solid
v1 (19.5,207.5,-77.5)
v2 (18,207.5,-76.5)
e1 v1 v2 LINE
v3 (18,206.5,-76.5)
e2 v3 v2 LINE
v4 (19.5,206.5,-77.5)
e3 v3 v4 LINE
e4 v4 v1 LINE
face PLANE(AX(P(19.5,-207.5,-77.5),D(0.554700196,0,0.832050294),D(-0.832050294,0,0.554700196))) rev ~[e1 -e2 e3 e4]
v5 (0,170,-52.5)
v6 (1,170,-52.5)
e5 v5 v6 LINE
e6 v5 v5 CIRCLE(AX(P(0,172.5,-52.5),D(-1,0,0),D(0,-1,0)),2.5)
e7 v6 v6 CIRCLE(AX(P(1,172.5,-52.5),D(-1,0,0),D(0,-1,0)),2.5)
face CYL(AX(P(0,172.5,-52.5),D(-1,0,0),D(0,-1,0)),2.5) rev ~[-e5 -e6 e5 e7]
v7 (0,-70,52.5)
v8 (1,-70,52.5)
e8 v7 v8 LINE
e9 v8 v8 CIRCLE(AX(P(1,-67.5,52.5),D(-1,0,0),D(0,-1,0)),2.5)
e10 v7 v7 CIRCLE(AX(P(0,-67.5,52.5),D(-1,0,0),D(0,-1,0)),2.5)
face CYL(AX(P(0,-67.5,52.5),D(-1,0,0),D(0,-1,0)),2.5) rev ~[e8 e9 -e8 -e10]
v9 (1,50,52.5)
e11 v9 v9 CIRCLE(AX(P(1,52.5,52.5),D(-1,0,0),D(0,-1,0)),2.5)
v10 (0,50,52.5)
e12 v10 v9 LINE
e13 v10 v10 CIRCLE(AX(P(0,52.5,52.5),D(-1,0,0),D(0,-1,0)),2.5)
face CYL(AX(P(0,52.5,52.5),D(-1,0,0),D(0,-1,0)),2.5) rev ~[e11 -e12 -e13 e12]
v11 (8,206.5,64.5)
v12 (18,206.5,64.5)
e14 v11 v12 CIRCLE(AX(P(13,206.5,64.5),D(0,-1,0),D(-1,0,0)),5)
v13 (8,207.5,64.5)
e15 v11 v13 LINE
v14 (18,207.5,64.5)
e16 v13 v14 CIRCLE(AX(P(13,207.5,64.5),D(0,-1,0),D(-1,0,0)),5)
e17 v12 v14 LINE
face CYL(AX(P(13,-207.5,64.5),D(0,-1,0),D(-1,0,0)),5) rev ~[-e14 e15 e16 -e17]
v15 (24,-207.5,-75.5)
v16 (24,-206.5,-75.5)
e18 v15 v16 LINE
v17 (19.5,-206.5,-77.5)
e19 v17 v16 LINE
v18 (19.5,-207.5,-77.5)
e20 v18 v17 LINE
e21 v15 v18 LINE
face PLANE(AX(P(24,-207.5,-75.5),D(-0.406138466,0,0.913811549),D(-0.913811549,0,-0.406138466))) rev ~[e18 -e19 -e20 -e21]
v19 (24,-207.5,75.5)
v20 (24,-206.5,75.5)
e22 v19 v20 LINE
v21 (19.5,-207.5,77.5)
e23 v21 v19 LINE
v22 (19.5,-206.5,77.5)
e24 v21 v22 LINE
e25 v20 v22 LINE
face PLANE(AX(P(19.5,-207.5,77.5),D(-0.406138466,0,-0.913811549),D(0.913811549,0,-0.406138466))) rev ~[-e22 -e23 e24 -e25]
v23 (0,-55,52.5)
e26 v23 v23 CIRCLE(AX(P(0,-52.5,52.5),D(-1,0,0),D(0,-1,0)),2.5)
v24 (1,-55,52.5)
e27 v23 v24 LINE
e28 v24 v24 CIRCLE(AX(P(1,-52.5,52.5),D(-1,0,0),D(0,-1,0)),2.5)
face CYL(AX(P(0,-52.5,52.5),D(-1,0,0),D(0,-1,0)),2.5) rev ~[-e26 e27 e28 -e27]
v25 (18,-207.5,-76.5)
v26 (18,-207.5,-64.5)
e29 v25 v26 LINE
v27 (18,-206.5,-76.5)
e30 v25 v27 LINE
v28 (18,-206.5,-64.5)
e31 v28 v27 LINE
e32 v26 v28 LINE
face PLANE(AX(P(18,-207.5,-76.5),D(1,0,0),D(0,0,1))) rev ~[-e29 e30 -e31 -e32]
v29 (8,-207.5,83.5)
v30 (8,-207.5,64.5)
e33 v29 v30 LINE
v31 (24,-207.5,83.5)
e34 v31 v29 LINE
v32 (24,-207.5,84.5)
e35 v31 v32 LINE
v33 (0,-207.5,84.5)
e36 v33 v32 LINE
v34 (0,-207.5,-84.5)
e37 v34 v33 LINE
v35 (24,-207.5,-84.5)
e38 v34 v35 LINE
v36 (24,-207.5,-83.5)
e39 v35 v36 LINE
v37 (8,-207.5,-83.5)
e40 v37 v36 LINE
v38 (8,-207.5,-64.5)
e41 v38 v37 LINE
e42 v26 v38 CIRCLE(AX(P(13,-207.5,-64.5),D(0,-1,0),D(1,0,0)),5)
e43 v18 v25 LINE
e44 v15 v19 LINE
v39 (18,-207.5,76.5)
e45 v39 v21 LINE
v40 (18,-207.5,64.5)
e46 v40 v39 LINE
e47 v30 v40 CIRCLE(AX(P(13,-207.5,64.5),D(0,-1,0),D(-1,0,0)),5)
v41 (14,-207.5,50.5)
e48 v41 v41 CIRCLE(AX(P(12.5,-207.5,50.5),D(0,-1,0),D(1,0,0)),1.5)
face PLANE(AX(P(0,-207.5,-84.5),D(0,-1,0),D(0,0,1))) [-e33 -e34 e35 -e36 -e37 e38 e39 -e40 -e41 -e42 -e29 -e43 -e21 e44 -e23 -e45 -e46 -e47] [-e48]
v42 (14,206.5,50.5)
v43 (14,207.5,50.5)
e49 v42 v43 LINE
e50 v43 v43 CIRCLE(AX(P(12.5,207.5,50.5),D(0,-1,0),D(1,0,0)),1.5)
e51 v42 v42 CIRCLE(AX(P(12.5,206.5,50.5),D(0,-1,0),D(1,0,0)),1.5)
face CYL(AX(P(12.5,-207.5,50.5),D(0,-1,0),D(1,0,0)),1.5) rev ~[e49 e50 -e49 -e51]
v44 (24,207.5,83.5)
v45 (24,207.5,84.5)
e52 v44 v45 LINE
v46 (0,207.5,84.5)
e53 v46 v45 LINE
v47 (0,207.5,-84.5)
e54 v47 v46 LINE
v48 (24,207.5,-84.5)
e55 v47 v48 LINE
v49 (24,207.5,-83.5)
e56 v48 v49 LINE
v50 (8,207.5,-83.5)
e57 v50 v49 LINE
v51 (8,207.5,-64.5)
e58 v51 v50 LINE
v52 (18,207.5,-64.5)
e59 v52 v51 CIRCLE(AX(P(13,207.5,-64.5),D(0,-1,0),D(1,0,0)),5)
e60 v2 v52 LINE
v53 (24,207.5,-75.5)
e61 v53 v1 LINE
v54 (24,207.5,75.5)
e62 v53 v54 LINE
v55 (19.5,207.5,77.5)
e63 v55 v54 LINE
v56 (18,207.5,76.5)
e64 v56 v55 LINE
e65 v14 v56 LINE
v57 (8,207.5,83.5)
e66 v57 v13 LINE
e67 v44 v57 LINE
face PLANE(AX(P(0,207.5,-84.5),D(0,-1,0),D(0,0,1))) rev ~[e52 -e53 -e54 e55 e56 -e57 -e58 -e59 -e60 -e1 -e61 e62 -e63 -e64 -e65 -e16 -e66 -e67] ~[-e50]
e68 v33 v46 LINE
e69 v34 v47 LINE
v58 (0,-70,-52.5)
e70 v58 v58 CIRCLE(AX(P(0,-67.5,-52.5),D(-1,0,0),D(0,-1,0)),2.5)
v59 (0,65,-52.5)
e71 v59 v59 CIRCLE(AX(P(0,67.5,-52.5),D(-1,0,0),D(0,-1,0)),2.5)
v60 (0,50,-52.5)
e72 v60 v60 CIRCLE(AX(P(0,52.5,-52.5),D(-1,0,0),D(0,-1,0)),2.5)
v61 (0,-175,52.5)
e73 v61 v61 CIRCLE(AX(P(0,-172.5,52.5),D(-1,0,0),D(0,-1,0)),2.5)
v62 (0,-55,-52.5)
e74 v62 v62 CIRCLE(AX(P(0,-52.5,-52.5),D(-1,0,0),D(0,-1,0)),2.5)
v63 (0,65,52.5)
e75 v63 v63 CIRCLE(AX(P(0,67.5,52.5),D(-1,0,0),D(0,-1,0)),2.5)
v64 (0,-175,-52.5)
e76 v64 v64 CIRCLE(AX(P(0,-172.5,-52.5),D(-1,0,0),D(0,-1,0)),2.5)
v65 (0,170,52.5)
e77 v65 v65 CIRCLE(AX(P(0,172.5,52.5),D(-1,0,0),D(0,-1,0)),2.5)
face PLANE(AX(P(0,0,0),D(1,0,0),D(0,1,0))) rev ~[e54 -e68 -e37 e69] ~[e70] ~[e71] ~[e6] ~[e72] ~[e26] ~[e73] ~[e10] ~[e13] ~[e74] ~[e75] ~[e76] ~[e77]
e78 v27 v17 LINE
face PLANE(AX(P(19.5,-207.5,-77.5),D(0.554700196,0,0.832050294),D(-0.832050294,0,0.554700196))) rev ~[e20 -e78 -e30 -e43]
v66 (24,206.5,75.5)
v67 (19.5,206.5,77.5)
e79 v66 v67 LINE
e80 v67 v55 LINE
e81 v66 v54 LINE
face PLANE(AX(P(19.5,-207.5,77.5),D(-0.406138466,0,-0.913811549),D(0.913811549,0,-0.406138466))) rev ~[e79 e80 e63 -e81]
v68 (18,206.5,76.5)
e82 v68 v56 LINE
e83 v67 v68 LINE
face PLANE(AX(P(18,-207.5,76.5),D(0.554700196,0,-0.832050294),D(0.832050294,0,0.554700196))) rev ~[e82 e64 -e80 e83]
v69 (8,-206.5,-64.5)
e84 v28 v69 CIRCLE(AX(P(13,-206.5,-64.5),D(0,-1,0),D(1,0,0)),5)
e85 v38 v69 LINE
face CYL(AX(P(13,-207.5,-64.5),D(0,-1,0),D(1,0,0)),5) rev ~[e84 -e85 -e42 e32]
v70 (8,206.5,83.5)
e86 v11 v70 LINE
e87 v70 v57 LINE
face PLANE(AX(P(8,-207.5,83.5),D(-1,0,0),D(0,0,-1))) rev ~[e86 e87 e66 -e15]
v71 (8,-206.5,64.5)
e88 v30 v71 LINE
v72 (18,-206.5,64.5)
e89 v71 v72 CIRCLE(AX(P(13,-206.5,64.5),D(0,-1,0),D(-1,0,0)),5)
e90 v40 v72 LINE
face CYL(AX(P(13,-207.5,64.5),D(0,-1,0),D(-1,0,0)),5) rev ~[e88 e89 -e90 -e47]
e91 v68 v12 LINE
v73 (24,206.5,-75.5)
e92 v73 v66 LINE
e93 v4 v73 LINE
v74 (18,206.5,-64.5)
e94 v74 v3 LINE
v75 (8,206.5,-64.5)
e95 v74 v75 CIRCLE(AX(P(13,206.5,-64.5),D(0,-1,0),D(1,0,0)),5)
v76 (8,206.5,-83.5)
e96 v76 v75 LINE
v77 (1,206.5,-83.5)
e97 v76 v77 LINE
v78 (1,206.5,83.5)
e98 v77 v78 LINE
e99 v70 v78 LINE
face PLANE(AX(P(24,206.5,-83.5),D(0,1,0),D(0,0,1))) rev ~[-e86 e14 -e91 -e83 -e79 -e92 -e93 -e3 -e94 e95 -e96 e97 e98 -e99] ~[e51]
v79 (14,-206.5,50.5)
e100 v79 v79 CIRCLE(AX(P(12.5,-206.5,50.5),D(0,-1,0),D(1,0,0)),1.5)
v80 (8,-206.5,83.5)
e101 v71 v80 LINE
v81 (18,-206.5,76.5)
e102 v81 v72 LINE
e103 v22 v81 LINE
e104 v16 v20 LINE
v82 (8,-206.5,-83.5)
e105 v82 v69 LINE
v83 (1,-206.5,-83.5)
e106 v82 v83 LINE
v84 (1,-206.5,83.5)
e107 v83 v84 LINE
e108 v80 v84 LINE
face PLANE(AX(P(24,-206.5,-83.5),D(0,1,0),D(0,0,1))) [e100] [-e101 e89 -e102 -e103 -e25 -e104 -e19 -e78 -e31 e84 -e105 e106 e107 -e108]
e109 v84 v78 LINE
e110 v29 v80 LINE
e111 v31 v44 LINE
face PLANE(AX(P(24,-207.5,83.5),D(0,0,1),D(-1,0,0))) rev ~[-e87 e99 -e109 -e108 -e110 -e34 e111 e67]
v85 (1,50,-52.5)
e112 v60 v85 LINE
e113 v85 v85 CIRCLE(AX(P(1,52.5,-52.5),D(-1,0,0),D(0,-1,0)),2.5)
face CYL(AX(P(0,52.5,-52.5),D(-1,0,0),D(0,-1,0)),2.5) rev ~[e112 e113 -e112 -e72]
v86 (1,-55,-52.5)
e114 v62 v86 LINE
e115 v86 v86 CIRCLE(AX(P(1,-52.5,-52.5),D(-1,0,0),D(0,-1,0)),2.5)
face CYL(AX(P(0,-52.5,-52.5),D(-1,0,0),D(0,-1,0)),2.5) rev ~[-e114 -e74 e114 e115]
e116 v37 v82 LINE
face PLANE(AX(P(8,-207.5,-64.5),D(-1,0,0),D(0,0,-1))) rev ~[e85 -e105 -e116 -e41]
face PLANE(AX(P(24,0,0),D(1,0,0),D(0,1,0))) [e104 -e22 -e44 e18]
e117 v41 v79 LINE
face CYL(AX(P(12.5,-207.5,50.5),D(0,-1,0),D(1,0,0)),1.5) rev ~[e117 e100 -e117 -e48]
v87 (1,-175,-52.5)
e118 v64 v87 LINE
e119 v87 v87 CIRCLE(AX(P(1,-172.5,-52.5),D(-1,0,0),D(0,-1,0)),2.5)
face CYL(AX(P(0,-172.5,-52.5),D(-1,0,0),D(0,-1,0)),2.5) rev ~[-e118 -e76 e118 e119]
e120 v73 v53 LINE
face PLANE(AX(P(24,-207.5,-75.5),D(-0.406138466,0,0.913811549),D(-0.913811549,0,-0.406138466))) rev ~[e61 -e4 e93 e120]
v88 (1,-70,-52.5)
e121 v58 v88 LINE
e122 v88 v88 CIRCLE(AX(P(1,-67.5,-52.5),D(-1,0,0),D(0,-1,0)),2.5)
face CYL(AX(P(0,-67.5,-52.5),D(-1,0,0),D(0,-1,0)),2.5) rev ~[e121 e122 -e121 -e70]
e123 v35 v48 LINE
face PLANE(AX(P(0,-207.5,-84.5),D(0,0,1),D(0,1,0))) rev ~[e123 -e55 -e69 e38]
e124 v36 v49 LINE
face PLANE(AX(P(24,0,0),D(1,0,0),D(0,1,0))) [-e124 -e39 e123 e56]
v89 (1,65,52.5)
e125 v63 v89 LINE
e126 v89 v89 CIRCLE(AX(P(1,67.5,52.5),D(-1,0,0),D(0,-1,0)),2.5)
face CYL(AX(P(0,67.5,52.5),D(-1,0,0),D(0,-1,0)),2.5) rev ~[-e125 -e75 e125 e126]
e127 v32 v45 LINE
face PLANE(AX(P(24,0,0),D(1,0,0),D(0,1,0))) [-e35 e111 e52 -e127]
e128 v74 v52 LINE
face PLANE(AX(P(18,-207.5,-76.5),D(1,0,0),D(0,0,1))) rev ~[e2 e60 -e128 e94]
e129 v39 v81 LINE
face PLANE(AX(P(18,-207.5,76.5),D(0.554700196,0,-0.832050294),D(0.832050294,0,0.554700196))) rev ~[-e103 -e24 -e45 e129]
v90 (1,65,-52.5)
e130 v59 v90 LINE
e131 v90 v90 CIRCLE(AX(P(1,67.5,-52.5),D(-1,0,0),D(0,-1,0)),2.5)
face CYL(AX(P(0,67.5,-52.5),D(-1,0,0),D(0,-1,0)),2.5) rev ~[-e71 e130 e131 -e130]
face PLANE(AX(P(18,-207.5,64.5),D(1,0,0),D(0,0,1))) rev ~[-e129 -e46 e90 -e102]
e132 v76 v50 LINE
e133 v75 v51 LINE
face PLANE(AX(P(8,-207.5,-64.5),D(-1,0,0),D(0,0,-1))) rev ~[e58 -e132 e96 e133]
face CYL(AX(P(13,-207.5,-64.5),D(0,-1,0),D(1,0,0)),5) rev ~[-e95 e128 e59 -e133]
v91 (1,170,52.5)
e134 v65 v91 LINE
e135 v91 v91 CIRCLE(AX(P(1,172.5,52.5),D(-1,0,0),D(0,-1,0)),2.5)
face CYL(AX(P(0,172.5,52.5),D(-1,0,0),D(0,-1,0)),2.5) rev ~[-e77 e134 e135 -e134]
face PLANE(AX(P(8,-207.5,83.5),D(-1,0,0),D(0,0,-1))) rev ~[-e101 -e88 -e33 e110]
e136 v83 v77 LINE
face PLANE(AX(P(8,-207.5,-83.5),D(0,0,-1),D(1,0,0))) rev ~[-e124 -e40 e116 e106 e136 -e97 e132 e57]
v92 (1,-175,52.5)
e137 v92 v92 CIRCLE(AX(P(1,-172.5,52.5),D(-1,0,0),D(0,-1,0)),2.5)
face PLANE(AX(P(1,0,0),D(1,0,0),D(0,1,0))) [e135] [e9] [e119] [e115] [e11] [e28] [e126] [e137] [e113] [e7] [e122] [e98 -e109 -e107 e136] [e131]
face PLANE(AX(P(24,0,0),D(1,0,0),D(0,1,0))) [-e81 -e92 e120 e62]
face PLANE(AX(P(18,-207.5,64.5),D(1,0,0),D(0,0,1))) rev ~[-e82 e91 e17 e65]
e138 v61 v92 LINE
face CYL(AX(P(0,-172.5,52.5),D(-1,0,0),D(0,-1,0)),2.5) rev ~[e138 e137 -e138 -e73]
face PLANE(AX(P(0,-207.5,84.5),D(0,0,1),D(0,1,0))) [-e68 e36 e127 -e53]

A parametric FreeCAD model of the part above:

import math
import FreeCAD as App
import Part
import Sketcher

doc = App.newDocument("Part")
params = doc.addObject("Spreadsheet::Sheet", "Params")
for row, (alias, value) in enumerate([
    ("sketch1_width", "415 mm"),
    ("sketch1_height", "169 mm"),
    ("pad1_length", "24 mm"),
    ("sketch2_width", "413 mm"),
    ("sketch2_height", "167 mm"),
    ("pocket1_length", "23 mm"),
    ("sketch3_radius", "5 mm"),
    ("sketch3_width", "16 mm"),
    ("sketch3_height", "8 mm"),
    ("sketch3_height2", "12 mm"),
    ("sketch3_height3", "19 mm"),
    ("sketch4_diameter", "3 mm"),
    ("sketch5_diameter", "5 mm"),
], start=1):
    params.set(f"A{row}", alias)
    params.set(f"B{row}", "=" + value)
    params.setAlias(f"B{row}", alias)

body = doc.addObject("PartDesign::Body", "Body")

sketch1 = doc.addObject("Sketcher::SketchObject", "Sketch")
body.addObject(sketch1)
sketch1.AttachmentSupport = (doc.YZ_Plane, [""])
sketch1.MapMode = "FlatFace"
sketch1.addGeometry([
    Part.LineSegment(App.Vector(-208, 84, 0), App.Vector(-208, -84, 0)),
    Part.LineSegment(App.Vector(-208, -84, 0), App.Vector(208, -84, 0)),
    Part.LineSegment(App.Vector(208, -84, 0), App.Vector(208, 84, 0)),
    Part.LineSegment(App.Vector(208, 84, 0), App.Vector(-208, 84, 0)),
], False)
sketch1.addConstraint([
    Sketcher.Constraint("Coincident", 0, 2, 1, 1),
    Sketcher.Constraint("Coincident", 1, 2, 2, 1),
    Sketcher.Constraint("Coincident", 2, 2, 3, 1),
    Sketcher.Constraint("Coincident", 3, 2, 0, 1),
    Sketcher.Constraint("Vertical", 0),
    Sketcher.Constraint("Horizontal", 1),
    Sketcher.Constraint("Vertical", 2),
    Sketcher.Constraint("Horizontal", 3),
    Sketcher.Constraint("Symmetric", 0, 2, 2, 2, -1, 1),
    Sketcher.Constraint("DistanceX", 1, 1, 1, 2, 415.0),
    Sketcher.Constraint("DistanceY", 0, 2, 0, 1, 169.0),
])
sketch1.setExpression("Constraints[9]", "Params.sketch1_width")
sketch1.setExpression("Constraints[10]", "Params.sketch1_height")
pad1 = doc.addObject("PartDesign::Pad", "Pad")
body.addObject(pad1)
pad1.Profile = sketch1
pad1.setExpression("Length", "Params.pad1_length")

sketch2 = doc.addObject("Sketcher::SketchObject", "Sketch001")
body.addObject(sketch2)
sketch2.AttachmentSupport = (doc.YZ_Plane, [""])
sketch2.MapMode = "FlatFace"
sketch2.AttachmentOffset = App.Placement(App.Vector(0, 0, 24), App.Rotation())
sketch2.addGeometry([
    Part.LineSegment(App.Vector(-206, 84, 0), App.Vector(-206, -84, 0)),
    Part.LineSegment(App.Vector(-206, -84, 0), App.Vector(206, -84, 0)),
    Part.LineSegment(App.Vector(206, -84, 0), App.Vector(206, 84, 0)),
    Part.LineSegment(App.Vector(206, 84, 0), App.Vector(-206, 84, 0)),
], False)
sketch2.addConstraint([
    Sketcher.Constraint("Coincident", 0, 2, 1, 1),
    Sketcher.Constraint("Coincident", 1, 2, 2, 1),
    Sketcher.Constraint("Coincident", 2, 2, 3, 1),
    Sketcher.Constraint("Coincident", 3, 2, 0, 1),
    Sketcher.Constraint("Vertical", 0),
    Sketcher.Constraint("Horizontal", 1),
    Sketcher.Constraint("Vertical", 2),
    Sketcher.Constraint("Horizontal", 3),
    Sketcher.Constraint("Symmetric", 0, 2, 2, 2, -1, 1),
    Sketcher.Constraint("DistanceX", 1, 1, 1, 2, 413.0),
    Sketcher.Constraint("DistanceY", 0, 2, 0, 1, 167.0),
])
sketch2.setExpression("Constraints[9]", "Params.sketch2_width")
sketch2.setExpression("Constraints[10]", "Params.sketch2_height")
pocket1 = doc.addObject("PartDesign::Pocket", "Pocket")
body.addObject(pocket1)
pocket1.Profile = sketch2
pocket1.setExpression("Length", "Params.pocket1_length")

sketch3 = doc.addObject("Sketcher::SketchObject", "Sketch002")
body.addObject(sketch3)
sketch3.AttachmentSupport = (doc.XZ_Plane, [""])
sketch3.MapMode = "FlatFace"
sketch3.AttachmentOffset = App.Placement(App.Vector(0, 0, 207.5), App.Rotation())
sketch3.addGeometry([
    Part.LineSegment(App.Vector(8, -83.5, 0), App.Vector(24, -83.5, 0)),
    Part.LineSegment(App.Vector(24, -83.5, 0), App.Vector(24, -75.5, 0)),
    Part.LineSegment(App.Vector(24, -75.5, 0), App.Vector(19.5, -77.5, 0)),
    Part.LineSegment(App.Vector(19.5, -77.5, 0), App.Vector(18, -76.5, 0)),
    Part.LineSegment(App.Vector(18, -76.5, 0), App.Vector(18, -64.5, 0)),
    Part.ArcOfCircle(Part.Circle(App.Vector(13, -64.5, 0), App.Vector(0, 0, 1), 5), math.radians(0), math.radians(180)),
    Part.LineSegment(App.Vector(8, -64.5, 0), App.Vector(8, -83.5, 0)),
    Part.LineSegment(App.Vector(18, 64.5, 0), App.Vector(18, 76.5, 0)),
    Part.LineSegment(App.Vector(18, 76.5, 0), App.Vector(19.5, 77.5, 0)),
    Part.LineSegment(App.Vector(19.5, 77.5, 0), App.Vector(24, 75.5, 0)),
    Part.LineSegment(App.Vector(24, 75.5, 0), App.Vector(24, 83.5, 0)),
    Part.LineSegment(App.Vector(24, 83.5, 0), App.Vector(8, 83.5, 0)),
    Part.LineSegment(App.Vector(8, 83.5, 0), App.Vector(8, 64.5, 0)),
    Part.ArcOfCircle(Part.Circle(App.Vector(13, 64.5, 0), App.Vector(0, 0, 1), 5), math.radians(180), math.radians(360)),
], False)
sketch3.addConstraint([
    Sketcher.Constraint("Coincident", 0, 2, 1, 1),
    Sketcher.Constraint("Coincident", 1, 2, 2, 1),
    Sketcher.Constraint("Coincident", 2, 2, 3, 1),
    Sketcher.Constraint("Coincident", 3, 2, 4, 1),
    Sketcher.Constraint("Tangent", 4, 2, 5, 1),
    Sketcher.Constraint("Tangent", 5, 2, 6, 1),
    Sketcher.Constraint("Coincident", 6, 2, 0, 1),
    Sketcher.Constraint("Coincident", 7, 2, 8, 1),
    Sketcher.Constraint("Coincident", 8, 2, 9, 1),
    Sketcher.Constraint("Coincident", 9, 2, 10, 1),
    Sketcher.Constraint("Coincident", 10, 2, 11, 1),
    Sketcher.Constraint("Coincident", 11, 2, 12, 1),
    Sketcher.Constraint("Tangent", 12, 2, 13, 1),
    Sketcher.Constraint("Tangent", 13, 2, 7, 1),
    Sketcher.Constraint("Horizontal", 0),
    Sketcher.Constraint("Vertical", 1),
    Sketcher.Constraint("Vertical", 4),
    Sketcher.Constraint("Vertical", 6),
    Sketcher.Constraint("Vertical", 7),
    Sketcher.Constraint("Vertical", 10),
    Sketcher.Constraint("Horizontal", 11),
    Sketcher.Constraint("Vertical", 12),
    Sketcher.Constraint("Equal", 5, 13),
    Sketcher.Constraint("Symmetric", 5, 3, 13, 3, -1),
    Sketcher.Constraint("Symmetric", 2, 2, 8, 2, -1),
    Sketcher.Constraint("Symmetric", 1, 2, 9, 2, -1),
    Sketcher.Constraint("Equal", 4, 7),
    Sketcher.Constraint("Equal", 1, 10),
    Sketcher.Constraint("Radius", 5, 5.0),
    Sketcher.Constraint("DistanceX", 0, 1, 0, 2, 16.0),
    Sketcher.Constraint("DistanceY", 1, 1, 1, 2, 8.0),
    Sketcher.Constraint("DistanceY", 4, 1, 4, 2, 12.0),
    Sketcher.Constraint("DistanceY", 6, 2, 6, 1, 19.0),
    Sketcher.Constraint("DistanceX", -1, 1, 5, 3, 13.0),
    Sketcher.Constraint("DistanceY", 5, 3, 13, 3, 129.0),
    Sketcher.Constraint("DistanceY", 2, 2, 1, 2, 2.0),
    Sketcher.Constraint("DistanceX", -1, 1, 2, 2, 19.5),
])
sketch3.setExpression("Constraints[28]", "Params.sketch3_radius")
sketch3.setExpression("Constraints[29]", "Params.sketch3_width")
sketch3.setExpression("Constraints[30]", "Params.sketch3_height")
sketch3.setExpression("Constraints[31]", "Params.sketch3_height2")
sketch3.setExpression("Constraints[32]", "Params.sketch3_height3")
pocket2 = doc.addObject("PartDesign::Pocket", "Pocket001")
body.addObject(pocket2)
pocket2.Profile = sketch3
pocket2.Type = "ThroughAll"

sketch4 = doc.addObject("Sketcher::SketchObject", "Sketch003")
body.addObject(sketch4)
sketch4.AttachmentSupport = (doc.XZ_Plane, [""])
sketch4.MapMode = "FlatFace"
sketch4.AttachmentOffset = App.Placement(App.Vector(0, 0, 207.5), App.Rotation())
sketch4.addGeometry(Part.Circle(App.Vector(12.5, 50.5, 0), App.Vector(0, 0, 1), 1.5), False)
sketch4.addConstraint([
    Sketcher.Constraint("Diameter", 0, 3.0),
    Sketcher.Constraint("DistanceX", -1, 1, 0, 3, 12.5),
    Sketcher.Constraint("DistanceY", -1, 1, 0, 3, 50.5),
])
sketch4.setExpression("Constraints[0]", "Params.sketch4_diameter")
pocket3 = doc.addObject("PartDesign::Pocket", "Pocket002")
body.addObject(pocket3)
pocket3.Profile = sketch4
pocket3.Type = "ThroughAll"

sketch5 = doc.addObject("Sketcher::SketchObject", "Sketch004")
body.addObject(sketch5)
sketch5.AttachmentSupport = (doc.YZ_Plane, [""])
sketch5.MapMode = "FlatFace"
sketch5.addGeometry([
    Part.Circle(App.Vector(172.5, 52.5, 0), App.Vector(0, 0, 1), 2.5),
    Part.Circle(App.Vector(67.5, 52.5, 0), App.Vector(0, 0, 1), 2.5),
    Part.Circle(App.Vector(52.5, 52.5, 0), App.Vector(0, 0, 1), 2.5),
    Part.Circle(App.Vector(67.5, -52.5, 0), App.Vector(0, 0, 1), 2.5),
    Part.Circle(App.Vector(172.5, -52.5, 0), App.Vector(0, 0, 1), 2.5),
    Part.Circle(App.Vector(52.5, -52.5, 0), App.Vector(0, 0, 1), 2.5),
    Part.Circle(App.Vector(-67.5, -52.5, 0), App.Vector(0, 0, 1), 2.5),
    Part.Circle(App.Vector(-52.5, 52.5, 0), App.Vector(0, 0, 1), 2.5),
    Part.Circle(App.Vector(-67.5, 52.5, 0), App.Vector(0, 0, 1), 2.5),
    Part.Circle(App.Vector(-172.5, 52.5, 0), App.Vector(0, 0, 1), 2.5),
    Part.Circle(App.Vector(-172.5, -52.5, 0), App.Vector(0, 0, 1), 2.5),
    Part.Circle(App.Vector(-52.5, -52.5, 0), App.Vector(0, 0, 1), 2.5),
], False)
sketch5.addConstraint([
    Sketcher.Constraint("Equal", 0, 1),
    Sketcher.Constraint("Equal", 1, 2),
    Sketcher.Constraint("Equal", 2, 3),
    Sketcher.Constraint("Equal", 3, 4),
    Sketcher.Constraint("Equal", 4, 5),
    Sketcher.Constraint("Equal", 5, 6),
    Sketcher.Constraint("Equal", 6, 7),
    Sketcher.Constraint("Equal", 7, 8),
    Sketcher.Constraint("Equal", 8, 9),
    Sketcher.Constraint("Equal", 9, 10),
    Sketcher.Constraint("Equal", 10, 11),
    Sketcher.Constraint("Symmetric", 1, 3, 6, 3, -1, 1),
    Sketcher.Constraint("Symmetric", 5, 3, 7, 3, -1, 1),
    Sketcher.Constraint("Symmetric", 3, 3, 8, 3, -1, 1),
    Sketcher.Constraint("Symmetric", 4, 3, 9, 3, -1, 1),
    Sketcher.Constraint("Symmetric", 0, 3, 10, 3, -1, 1),
    Sketcher.Constraint("Symmetric", 2, 3, 11, 3, -1, 1),
    Sketcher.Constraint("Symmetric", 3, 3, 6, 3, -2),
    Sketcher.Constraint("Symmetric", 2, 3, 7, 3, -2),
    Sketcher.Constraint("Symmetric", 0, 3, 9, 3, -2),
    Sketcher.Constraint("Horizontal", 0, 3, 1, 3),
    Sketcher.Constraint("Horizontal", 1, 3, 2, 3),
    Sketcher.Constraint("Diameter", 0, 5.0),
    Sketcher.Constraint("DistanceX", 1, 3, 0, 3, 105.0),
    Sketcher.Constraint("DistanceX", 2, 3, 1, 3, 15.0),
    Sketcher.Constraint("DistanceY", 3, 3, 1, 3, 105.0),
    Sketcher.Constraint("DistanceX", 6, 3, 5, 3, 120.0),
])
sketch5.setExpression("Constraints[22]", "Params.sketch5_diameter")
pocket4 = doc.addObject("PartDesign::Pocket", "Pocket003")
body.addObject(pocket4)
pocket4.Profile = sketch5
pocket4.Type = "ThroughAll"
pocket4.Reversed = True

doc.recompute()
